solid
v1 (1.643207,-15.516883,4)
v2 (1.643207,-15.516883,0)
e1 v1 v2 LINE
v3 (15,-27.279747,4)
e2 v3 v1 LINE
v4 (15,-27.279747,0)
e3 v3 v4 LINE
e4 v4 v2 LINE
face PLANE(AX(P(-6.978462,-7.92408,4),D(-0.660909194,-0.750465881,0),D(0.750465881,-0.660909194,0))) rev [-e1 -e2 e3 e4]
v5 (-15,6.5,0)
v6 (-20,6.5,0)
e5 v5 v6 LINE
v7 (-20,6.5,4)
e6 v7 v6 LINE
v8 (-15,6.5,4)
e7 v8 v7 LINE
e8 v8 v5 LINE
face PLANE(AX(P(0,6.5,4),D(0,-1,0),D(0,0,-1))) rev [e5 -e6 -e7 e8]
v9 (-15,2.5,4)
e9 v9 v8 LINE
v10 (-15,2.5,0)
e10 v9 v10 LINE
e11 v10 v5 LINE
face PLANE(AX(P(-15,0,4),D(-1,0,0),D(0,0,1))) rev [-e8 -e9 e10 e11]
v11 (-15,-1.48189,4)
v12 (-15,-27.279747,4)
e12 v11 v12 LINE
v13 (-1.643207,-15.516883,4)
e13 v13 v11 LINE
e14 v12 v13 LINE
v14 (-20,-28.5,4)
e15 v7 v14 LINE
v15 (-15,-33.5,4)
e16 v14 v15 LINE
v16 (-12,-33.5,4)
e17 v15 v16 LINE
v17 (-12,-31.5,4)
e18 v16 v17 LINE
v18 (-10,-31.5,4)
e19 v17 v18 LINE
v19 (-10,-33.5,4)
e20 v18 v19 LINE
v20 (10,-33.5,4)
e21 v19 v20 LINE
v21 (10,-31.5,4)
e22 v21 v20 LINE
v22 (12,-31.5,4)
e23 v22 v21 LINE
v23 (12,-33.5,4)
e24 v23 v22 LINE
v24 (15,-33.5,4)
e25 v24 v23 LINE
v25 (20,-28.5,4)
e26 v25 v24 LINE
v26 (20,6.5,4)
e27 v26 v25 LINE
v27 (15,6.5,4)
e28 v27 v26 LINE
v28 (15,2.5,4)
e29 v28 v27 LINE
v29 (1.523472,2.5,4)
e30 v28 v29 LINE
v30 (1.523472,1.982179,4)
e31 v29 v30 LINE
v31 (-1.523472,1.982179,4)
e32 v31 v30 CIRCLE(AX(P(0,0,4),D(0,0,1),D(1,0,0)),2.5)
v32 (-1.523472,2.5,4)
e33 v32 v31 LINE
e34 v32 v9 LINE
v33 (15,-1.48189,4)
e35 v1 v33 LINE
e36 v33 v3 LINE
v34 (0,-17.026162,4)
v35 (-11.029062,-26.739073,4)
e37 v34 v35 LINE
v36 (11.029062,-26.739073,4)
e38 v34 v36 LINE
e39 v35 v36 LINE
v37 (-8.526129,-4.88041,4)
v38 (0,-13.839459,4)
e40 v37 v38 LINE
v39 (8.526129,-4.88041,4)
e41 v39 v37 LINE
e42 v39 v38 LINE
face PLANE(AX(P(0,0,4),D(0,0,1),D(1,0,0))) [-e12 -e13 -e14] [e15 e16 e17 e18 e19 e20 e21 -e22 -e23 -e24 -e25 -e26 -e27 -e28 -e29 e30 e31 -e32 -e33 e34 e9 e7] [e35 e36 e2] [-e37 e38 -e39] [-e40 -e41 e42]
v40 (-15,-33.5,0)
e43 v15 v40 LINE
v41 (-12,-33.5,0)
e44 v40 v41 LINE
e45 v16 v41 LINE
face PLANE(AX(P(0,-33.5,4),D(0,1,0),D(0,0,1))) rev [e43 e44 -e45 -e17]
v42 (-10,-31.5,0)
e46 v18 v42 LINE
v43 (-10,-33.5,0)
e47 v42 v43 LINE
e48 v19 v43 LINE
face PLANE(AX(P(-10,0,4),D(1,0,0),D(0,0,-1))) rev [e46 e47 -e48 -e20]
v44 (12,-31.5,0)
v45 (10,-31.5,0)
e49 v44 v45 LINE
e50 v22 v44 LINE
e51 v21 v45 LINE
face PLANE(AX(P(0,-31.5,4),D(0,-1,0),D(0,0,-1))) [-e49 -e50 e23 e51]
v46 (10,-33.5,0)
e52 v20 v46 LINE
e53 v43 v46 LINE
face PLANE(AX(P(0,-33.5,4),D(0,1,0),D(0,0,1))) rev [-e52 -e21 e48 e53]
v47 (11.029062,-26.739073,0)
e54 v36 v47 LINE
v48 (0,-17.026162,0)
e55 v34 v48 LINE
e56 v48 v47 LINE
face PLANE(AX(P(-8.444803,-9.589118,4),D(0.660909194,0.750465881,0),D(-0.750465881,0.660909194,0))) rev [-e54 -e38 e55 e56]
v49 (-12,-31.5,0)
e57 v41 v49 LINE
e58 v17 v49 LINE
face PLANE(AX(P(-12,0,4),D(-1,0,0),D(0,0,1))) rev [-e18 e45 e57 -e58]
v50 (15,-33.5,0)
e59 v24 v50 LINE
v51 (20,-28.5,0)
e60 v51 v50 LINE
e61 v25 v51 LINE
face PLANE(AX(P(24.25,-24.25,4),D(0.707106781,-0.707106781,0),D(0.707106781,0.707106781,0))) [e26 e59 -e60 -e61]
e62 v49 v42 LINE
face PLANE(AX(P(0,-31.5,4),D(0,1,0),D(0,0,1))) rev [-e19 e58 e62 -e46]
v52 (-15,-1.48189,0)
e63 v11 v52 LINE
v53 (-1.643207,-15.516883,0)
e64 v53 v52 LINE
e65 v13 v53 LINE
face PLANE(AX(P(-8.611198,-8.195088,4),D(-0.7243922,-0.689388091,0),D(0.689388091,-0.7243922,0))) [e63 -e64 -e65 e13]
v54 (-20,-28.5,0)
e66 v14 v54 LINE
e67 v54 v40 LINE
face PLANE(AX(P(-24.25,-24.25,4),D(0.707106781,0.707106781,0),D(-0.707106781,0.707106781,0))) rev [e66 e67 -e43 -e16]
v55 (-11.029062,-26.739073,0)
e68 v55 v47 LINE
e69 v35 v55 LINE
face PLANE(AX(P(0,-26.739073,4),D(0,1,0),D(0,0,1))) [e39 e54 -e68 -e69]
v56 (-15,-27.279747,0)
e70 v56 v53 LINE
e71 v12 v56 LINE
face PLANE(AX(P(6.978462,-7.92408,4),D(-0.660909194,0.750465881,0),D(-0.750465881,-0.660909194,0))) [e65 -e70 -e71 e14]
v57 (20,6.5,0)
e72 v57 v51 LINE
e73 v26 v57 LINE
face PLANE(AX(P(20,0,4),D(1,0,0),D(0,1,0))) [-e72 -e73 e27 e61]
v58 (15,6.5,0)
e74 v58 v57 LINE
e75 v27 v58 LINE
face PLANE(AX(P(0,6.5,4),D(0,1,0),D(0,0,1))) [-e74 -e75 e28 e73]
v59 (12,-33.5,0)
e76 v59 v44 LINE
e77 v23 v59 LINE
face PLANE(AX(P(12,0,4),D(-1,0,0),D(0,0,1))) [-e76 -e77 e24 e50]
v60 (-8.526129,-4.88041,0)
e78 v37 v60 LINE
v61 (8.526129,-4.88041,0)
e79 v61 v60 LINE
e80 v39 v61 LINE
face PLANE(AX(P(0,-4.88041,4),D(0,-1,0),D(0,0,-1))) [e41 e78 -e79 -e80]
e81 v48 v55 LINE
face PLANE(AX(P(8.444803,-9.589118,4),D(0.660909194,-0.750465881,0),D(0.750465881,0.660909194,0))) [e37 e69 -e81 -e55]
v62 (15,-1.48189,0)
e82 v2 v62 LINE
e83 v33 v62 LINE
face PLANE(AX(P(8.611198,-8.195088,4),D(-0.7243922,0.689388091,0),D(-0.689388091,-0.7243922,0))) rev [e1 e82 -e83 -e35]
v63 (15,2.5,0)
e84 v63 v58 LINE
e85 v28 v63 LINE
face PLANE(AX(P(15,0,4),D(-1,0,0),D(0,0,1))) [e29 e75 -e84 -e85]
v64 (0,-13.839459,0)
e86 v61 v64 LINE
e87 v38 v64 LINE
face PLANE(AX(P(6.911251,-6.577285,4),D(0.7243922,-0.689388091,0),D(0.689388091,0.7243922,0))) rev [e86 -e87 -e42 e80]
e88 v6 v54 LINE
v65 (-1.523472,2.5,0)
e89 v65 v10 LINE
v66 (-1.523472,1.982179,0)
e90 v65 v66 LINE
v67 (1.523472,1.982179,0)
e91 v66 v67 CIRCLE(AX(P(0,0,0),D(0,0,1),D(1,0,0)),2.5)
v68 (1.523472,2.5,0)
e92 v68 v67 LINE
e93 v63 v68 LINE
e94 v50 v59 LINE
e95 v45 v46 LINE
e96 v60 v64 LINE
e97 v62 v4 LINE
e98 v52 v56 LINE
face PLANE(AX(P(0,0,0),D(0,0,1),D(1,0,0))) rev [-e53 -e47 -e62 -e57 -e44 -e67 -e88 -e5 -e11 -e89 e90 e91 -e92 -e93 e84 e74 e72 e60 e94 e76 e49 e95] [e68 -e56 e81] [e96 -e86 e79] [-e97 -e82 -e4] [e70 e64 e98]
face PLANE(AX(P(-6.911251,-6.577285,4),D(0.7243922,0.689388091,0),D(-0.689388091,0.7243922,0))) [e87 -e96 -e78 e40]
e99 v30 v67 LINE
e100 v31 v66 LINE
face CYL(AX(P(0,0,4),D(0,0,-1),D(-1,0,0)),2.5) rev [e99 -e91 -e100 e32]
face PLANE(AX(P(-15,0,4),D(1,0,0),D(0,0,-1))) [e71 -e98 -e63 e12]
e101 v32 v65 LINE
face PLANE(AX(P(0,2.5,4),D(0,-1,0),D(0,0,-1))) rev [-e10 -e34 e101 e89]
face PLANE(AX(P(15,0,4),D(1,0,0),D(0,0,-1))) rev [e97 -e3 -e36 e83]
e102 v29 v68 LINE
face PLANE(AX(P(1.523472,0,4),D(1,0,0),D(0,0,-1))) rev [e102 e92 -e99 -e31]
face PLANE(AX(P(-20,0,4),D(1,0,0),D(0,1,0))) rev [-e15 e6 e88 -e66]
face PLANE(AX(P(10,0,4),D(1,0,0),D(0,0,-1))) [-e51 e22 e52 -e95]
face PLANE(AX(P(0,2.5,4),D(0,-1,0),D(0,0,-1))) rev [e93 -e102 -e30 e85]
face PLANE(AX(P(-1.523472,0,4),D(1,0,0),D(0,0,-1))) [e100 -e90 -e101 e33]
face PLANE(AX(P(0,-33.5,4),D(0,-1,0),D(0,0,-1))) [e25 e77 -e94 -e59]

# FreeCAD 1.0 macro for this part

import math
import FreeCAD as App
import Part
import Sketcher

V = App.Vector
Q = App.Units.Quantity

doc = App.newDocument("Part")
body = doc.addObject("PartDesign::Body", "Body")

# Sketch on XY plane
sketch1 = body.newObject("Sketcher::SketchObject", "Sketch")
sketch1.AttachmentSupport = (doc.getObject("XY_Plane"), [""])
sketch1.MapMode = "FlatFace"
sketch1.addGeometry(Part.LineSegment(V(15, 6.5, 0), V(15, 2.5, 0)), False)
sketch1.addGeometry(Part.LineSegment(V(15, 2.5, 0), V(1.5, 2.5, 0)), False)
sketch1.addGeometry(Part.LineSegment(V(1.5, 2.5, 0), V(1.5, 2, 0)), False)
sketch1.addGeometry(Part.ArcOfCircle(Part.Circle(V(0, 0, 0), V(0, 0, 1), 2.5), math.radians(0), math.radians(52)), False)
sketch1.addGeometry(Part.ArcOfCircle(Part.Circle(V(0, 0, 0), V(0, 0, 1), 2.5), math.radians(128), math.radians(360)), False)
sketch1.addGeometry(Part.LineSegment(V(-1.5, 2, 0), V(-1.5, 2.5, 0)), False)
sketch1.addGeometry(Part.LineSegment(V(-1.5, 2.5, 0), V(-15, 2.5, 0)), False)
sketch1.addGeometry(Part.LineSegment(V(-15, 2.5, 0), V(-15, 6.5, 0)), False)
sketch1.addGeometry(Part.LineSegment(V(-15, 6.5, 0), V(-20, 6.5, 0)), False)
sketch1.addGeometry(Part.LineSegment(V(-20, 6.5, 0), V(-20, -28.5, 0)), False)
sketch1.addGeometry(Part.LineSegment(V(-20, -28.5, 0), V(-15, -33.5, 0)), False)
sketch1.addGeometry(Part.LineSegment(V(-15, -33.5, 0), V(-12, -33.5, 0)), False)
sketch1.addGeometry(Part.LineSegment(V(-12, -33.5, 0), V(-12, -31.5, 0)), False)
sketch1.addGeometry(Part.LineSegment(V(-12, -31.5, 0), V(-10, -31.5, 0)), False)
sketch1.addGeometry(Part.LineSegment(V(-10, -31.5, 0), V(-10, -33.5, 0)), False)
sketch1.addGeometry(Part.LineSegment(V(-10, -33.5, 0), V(10, -33.5, 0)), False)
sketch1.addGeometry(Part.LineSegment(V(10, -33.5, 0), V(10, -31.5, 0)), False)
sketch1.addGeometry(Part.LineSegment(V(10, -31.5, 0), V(12, -31.5, 0)), False)
sketch1.addGeometry(Part.LineSegment(V(12, -31.5, 0), V(12, -33.5, 0)), False)
sketch1.addGeometry(Part.LineSegment(V(12, -33.5, 0), V(15, -33.5, 0)), False)
sketch1.addGeometry(Part.LineSegment(V(15, -33.5, 0), V(20, -28.5, 0)), False)
sketch1.addGeometry(Part.LineSegment(V(20, -28.5, 0), V(20, 6.5, 0)), False)
sketch1.addGeometry(Part.LineSegment(V(20, 6.5, 0), V(15, 6.5, 0)), False)
sketch1.addGeometry(Part.LineSegment(V(-1.6, -15.5, 0), V(-15, -27.3, 0)), False)
sketch1.addGeometry(Part.LineSegment(V(-15, -27.3, 0), V(-15, -1.5, 0)), False)
sketch1.addGeometry(Part.LineSegment(V(-15, -1.5, 0), V(-1.6, -15.5, 0)), False)
sketch1.addGeometry(Part.LineSegment(V(11, -26.7, 0), V(-11, -26.7, 0)), False)
sketch1.addGeometry(Part.LineSegment(V(-11, -26.7, 0), V(0, -17, 0)), False)
sketch1.addGeometry(Part.LineSegment(V(0, -17, 0), V(11, -26.7, 0)), False)
sketch1.addGeometry(Part.LineSegment(V(15, -1.5, 0), V(15, -27.3, 0)), False)
sketch1.addGeometry(Part.LineSegment(V(15, -27.3, 0), V(1.6, -15.5, 0)), False)
sketch1.addGeometry(Part.LineSegment(V(1.6, -15.5, 0), V(15, -1.5, 0)), False)
sketch1.addGeometry(Part.LineSegment(V(0, -13.8, 0), V(-8.5, -4.9, 0)), False)
sketch1.addGeometry(Part.LineSegment(V(-8.5, -4.9, 0), V(8.5, -4.9, 0)), False)
sketch1.addGeometry(Part.LineSegment(V(8.5, -4.9, 0), V(0, -13.8, 0)), False)
sketch1.addConstraint(Sketcher.Constraint("Coincident", 0, 2, 1, 1))
sketch1.addConstraint(Sketcher.Constraint("Coincident", 1, 2, 2, 1))
sketch1.addConstraint(Sketcher.Constraint("Coincident", 2, 2, 3, 2))
sketch1.addConstraint(Sketcher.Constraint("Tangent", 3, 1, 4, 2))
sketch1.addConstraint(Sketcher.Constraint("Coincident", 4, 1, 5, 1))
sketch1.addConstraint(Sketcher.Constraint("Coincident", 5, 2, 6, 1))
sketch1.addConstraint(Sketcher.Constraint("Coincident", 6, 2, 7, 1))
sketch1.addConstraint(Sketcher.Constraint("Coincident", 7, 2, 8, 1))
sketch1.addConstraint(Sketcher.Constraint("Coincident", 8, 2, 9, 1))
sketch1.addConstraint(Sketcher.Constraint("Coincident", 9, 2, 10, 1))
sketch1.addConstraint(Sketcher.Constraint("Coincident", 10, 2, 11, 1))
sketch1.addConstraint(Sketcher.Constraint("Coincident", 11, 2, 12, 1))
sketch1.addConstraint(Sketcher.Constraint("Coincident", 12, 2, 13, 1))
sketch1.addConstraint(Sketcher.Constraint("Coincident", 13, 2, 14, 1))
sketch1.addConstraint(Sketcher.Constraint("Coincident", 14, 2, 15, 1))
sketch1.addConstraint(Sketcher.Constraint("Coincident", 15, 2, 16, 1))
sketch1.addConstraint(Sketcher.Constraint("Coincident", 16, 2, 17, 1))
sketch1.addConstraint(Sketcher.Constraint("Coincident", 17, 2, 18, 1))
sketch1.addConstraint(Sketcher.Constraint("Coincident", 18, 2, 19, 1))
sketch1.addConstraint(Sketcher.Constraint("Coincident", 19, 2, 20, 1))
sketch1.addConstraint(Sketcher.Constraint("Coincident", 20, 2, 21, 1))
sketch1.addConstraint(Sketcher.Constraint("Coincident", 21, 2, 22, 1))
sketch1.addConstraint(Sketcher.Constraint("Coincident", 22, 2, 0, 1))
sketch1.addConstraint(Sketcher.Constraint("Coincident", 23, 2, 24, 1))
sketch1.addConstraint(Sketcher.Constraint("Coincident", 24, 2, 25, 1))
sketch1.addConstraint(Sketcher.Constraint("Coincident", 25, 2, 23, 1))
sketch1.addConstraint(Sketcher.Constraint("Coincident", 26, 2, 27, 1))
sketch1.addConstraint(Sketcher.Constraint("Coincident", 27, 2, 28, 1))
sketch1.addConstraint(Sketcher.Constraint("Coincident", 28, 2, 26, 1))
sketch1.addConstraint(Sketcher.Constraint("Coincident", 29, 2, 30, 1))
sketch1.addConstraint(Sketcher.Constraint("Coincident", 30, 2, 31, 1))
sketch1.addConstraint(Sketcher.Constraint("Coincident", 31, 2, 29, 1))
sketch1.addConstraint(Sketcher.Constraint("Coincident", 32, 2, 33, 1))
sketch1.addConstraint(Sketcher.Constraint("Coincident", 33, 2, 34, 1))
sketch1.addConstraint(Sketcher.Constraint("Coincident", 34, 2, 32, 1))
sketch1.addConstraint(Sketcher.Constraint("Vertical", 0))
sketch1.addConstraint(Sketcher.Constraint("Horizontal", 1))
sketch1.addConstraint(Sketcher.Constraint("Vertical", 2))
sketch1.addConstraint(Sketcher.Constraint("Vertical", 5))
sketch1.addConstraint(Sketcher.Constraint("Horizontal", 6))
sketch1.addConstraint(Sketcher.Constraint("Vertical", 7))
sketch1.addConstraint(Sketcher.Constraint("Horizontal", 8))
sketch1.addConstraint(Sketcher.Constraint("Vertical", 9))
sketch1.addConstraint(Sketcher.Constraint("Horizontal", 11))
sketch1.addConstraint(Sketcher.Constraint("Vertical", 12))
sketch1.addConstraint(Sketcher.Constraint("Horizontal", 13))
sketch1.addConstraint(Sketcher.Constraint("Vertical", 14))
sketch1.addConstraint(Sketcher.Constraint("Horizontal", 15))
sketch1.addConstraint(Sketcher.Constraint("Vertical", 16))
sketch1.addConstraint(Sketcher.Constraint("Horizontal", 17))
sketch1.addConstraint(Sketcher.Constraint("Vertical", 18))
sketch1.addConstraint(Sketcher.Constraint("Horizontal", 19))
sketch1.addConstraint(Sketcher.Constraint("Vertical", 21))
sketch1.addConstraint(Sketcher.Constraint("Horizontal", 22))
sketch1.addConstraint(Sketcher.Constraint("Vertical", 24))
sketch1.addConstraint(Sketcher.Constraint("Horizontal", 26))
sketch1.addConstraint(Sketcher.Constraint("Vertical", 29))
sketch1.addConstraint(Sketcher.Constraint("Horizontal", 33))
sketch1.addConstraint(Sketcher.Constraint("Coincident", 3, 3, -1, 1))
sketch1.addConstraint(Sketcher.Constraint("Equal", 3, 4))
sketch1.addConstraint(Sketcher.Constraint("Symmetric", 1, 2, 5, 2, -2))
sketch1.addConstraint(Sketcher.Constraint("Symmetric", 13, 2, 16, 2, -2))
sketch1.addConstraint(Sketcher.Constraint("Symmetric", 11, 2, 18, 2, -2))
sketch1.addConstraint(Sketcher.Constraint("Symmetric", 9, 2, 20, 2, -2))
sketch1.addConstraint(Sketcher.Constraint("Symmetric", 7, 2, 22, 2, -2))
sketch1.addConstraint(Sketcher.Constraint("Symmetric", 23, 2, 29, 2, -2))
sketch1.addConstraint(Sketcher.Constraint("Symmetric", 25, 2, 30, 2, -2))
sketch1.addConstraint(Sketcher.Constraint("PointOnObject", 3, 1, -1))
sketch1.addConstraint(Sketcher.Constraint("PointOnObject", 27, 2, -2))
sketch1.addConstraint(Sketcher.Constraint("PointOnObject", 34, 2, -2))
sketch1.addConstraint(Sketcher.Constraint("Perpendicular", 10, 20))
sketch1.addConstraint(Sketcher.Constraint("Parallel", 23, 27))
sketch1.addConstraint(Sketcher.Constraint("Parallel", 28, 30))
sketch1.addConstraint(Sketcher.Constraint("Parallel", 25, 32))
sketch1.addConstraint(Sketcher.Constraint("Parallel", 31, 34))
sketch1.addConstraint(Sketcher.Constraint("Horizontal", 11, 2, 14, 2))
sketch1.addConstraint(Sketcher.Constraint("Horizontal", 24, 2, 31, 2))
sketch1.addConstraint(Sketcher.Constraint("Vertical", 7, 2, 10, 2))
sketch1.addConstraint(Sketcher.Constraint("Vertical", 0, 2, 19, 2))
sketch1.addConstraint(Sketcher.Constraint("Vertical", 10, 2, 23, 2))
sketch1.addConstraint(Sketcher.Constraint("Equal", 17, 12))
sketch1.addConstraint(Sketcher.Constraint("Radius", 3, Q("2.5 mm")))
sketch1.addConstraint(Sketcher.Constraint("DistanceX", 8, 2, 8, 1, Q("5 mm")))
sketch1.addConstraint(Sketcher.Constraint("DistanceX", 11, 1, 11, 2, Q("3 mm")))
sketch1.addConstraint(Sketcher.Constraint("DistanceX", 13, 1, 13, 2, Q("2 mm")))
sketch1.addConstraint(Sketcher.Constraint("DistanceX", 15, 1, 15, 2, Q("20 mm")))
sketch1.addConstraint(Sketcher.Constraint("DistanceY", 0, 2, 0, 1, Q("4 mm")))
sketch1.addConstraint(Sketcher.Constraint("DistanceY", 9, 2, 9, 1, Q("35 mm")))
sketch1.addConstraint(Sketcher.Constraint("DistanceY", -1, 1, 0, 2, Q("2.5 mm")))
sketch1.addConstraint(Sketcher.Constraint("DistanceX", 1, 2, 1, 1, Q("13.476528 mm")))
sketch1.addConstraint(Sketcher.Constraint("DistanceX", 26, 2, 26, 1, Q("22.058124 mm")))
sketch1.addConstraint(Sketcher.Constraint("DistanceX", 33, 1, 33, 2, Q("17.052258 mm")))
sketch1.addConstraint(Sketcher.Constraint("DistanceY", 24, 1, 24, 2, Q("25.797856 mm")))
sketch1.addConstraint(Sketcher.Constraint("DistanceY", 24, 2, -1, 1, Q("1.48189 mm")))
sketch1.addConstraint(Sketcher.Constraint("DistanceY", 27, 2, -1, 1, Q("17.026162 mm")))
sketch1.addConstraint(Sketcher.Constraint("DistanceY", 32, 2, -1, 1, Q("4.88041 mm")))
sketch1.addConstraint(Sketcher.Constraint("DistanceY", 34, 2, -1, 1, Q("13.839459 mm")))
sketch1.addConstraint(Sketcher.Constraint("DistanceX", 25, 2, 2, 2, Q("3.166678 mm")))
pad1 = body.newObject("PartDesign::Pad", "Pad")
pad1.Profile = sketch1
pad1.Length = 4

doc.recompute()
